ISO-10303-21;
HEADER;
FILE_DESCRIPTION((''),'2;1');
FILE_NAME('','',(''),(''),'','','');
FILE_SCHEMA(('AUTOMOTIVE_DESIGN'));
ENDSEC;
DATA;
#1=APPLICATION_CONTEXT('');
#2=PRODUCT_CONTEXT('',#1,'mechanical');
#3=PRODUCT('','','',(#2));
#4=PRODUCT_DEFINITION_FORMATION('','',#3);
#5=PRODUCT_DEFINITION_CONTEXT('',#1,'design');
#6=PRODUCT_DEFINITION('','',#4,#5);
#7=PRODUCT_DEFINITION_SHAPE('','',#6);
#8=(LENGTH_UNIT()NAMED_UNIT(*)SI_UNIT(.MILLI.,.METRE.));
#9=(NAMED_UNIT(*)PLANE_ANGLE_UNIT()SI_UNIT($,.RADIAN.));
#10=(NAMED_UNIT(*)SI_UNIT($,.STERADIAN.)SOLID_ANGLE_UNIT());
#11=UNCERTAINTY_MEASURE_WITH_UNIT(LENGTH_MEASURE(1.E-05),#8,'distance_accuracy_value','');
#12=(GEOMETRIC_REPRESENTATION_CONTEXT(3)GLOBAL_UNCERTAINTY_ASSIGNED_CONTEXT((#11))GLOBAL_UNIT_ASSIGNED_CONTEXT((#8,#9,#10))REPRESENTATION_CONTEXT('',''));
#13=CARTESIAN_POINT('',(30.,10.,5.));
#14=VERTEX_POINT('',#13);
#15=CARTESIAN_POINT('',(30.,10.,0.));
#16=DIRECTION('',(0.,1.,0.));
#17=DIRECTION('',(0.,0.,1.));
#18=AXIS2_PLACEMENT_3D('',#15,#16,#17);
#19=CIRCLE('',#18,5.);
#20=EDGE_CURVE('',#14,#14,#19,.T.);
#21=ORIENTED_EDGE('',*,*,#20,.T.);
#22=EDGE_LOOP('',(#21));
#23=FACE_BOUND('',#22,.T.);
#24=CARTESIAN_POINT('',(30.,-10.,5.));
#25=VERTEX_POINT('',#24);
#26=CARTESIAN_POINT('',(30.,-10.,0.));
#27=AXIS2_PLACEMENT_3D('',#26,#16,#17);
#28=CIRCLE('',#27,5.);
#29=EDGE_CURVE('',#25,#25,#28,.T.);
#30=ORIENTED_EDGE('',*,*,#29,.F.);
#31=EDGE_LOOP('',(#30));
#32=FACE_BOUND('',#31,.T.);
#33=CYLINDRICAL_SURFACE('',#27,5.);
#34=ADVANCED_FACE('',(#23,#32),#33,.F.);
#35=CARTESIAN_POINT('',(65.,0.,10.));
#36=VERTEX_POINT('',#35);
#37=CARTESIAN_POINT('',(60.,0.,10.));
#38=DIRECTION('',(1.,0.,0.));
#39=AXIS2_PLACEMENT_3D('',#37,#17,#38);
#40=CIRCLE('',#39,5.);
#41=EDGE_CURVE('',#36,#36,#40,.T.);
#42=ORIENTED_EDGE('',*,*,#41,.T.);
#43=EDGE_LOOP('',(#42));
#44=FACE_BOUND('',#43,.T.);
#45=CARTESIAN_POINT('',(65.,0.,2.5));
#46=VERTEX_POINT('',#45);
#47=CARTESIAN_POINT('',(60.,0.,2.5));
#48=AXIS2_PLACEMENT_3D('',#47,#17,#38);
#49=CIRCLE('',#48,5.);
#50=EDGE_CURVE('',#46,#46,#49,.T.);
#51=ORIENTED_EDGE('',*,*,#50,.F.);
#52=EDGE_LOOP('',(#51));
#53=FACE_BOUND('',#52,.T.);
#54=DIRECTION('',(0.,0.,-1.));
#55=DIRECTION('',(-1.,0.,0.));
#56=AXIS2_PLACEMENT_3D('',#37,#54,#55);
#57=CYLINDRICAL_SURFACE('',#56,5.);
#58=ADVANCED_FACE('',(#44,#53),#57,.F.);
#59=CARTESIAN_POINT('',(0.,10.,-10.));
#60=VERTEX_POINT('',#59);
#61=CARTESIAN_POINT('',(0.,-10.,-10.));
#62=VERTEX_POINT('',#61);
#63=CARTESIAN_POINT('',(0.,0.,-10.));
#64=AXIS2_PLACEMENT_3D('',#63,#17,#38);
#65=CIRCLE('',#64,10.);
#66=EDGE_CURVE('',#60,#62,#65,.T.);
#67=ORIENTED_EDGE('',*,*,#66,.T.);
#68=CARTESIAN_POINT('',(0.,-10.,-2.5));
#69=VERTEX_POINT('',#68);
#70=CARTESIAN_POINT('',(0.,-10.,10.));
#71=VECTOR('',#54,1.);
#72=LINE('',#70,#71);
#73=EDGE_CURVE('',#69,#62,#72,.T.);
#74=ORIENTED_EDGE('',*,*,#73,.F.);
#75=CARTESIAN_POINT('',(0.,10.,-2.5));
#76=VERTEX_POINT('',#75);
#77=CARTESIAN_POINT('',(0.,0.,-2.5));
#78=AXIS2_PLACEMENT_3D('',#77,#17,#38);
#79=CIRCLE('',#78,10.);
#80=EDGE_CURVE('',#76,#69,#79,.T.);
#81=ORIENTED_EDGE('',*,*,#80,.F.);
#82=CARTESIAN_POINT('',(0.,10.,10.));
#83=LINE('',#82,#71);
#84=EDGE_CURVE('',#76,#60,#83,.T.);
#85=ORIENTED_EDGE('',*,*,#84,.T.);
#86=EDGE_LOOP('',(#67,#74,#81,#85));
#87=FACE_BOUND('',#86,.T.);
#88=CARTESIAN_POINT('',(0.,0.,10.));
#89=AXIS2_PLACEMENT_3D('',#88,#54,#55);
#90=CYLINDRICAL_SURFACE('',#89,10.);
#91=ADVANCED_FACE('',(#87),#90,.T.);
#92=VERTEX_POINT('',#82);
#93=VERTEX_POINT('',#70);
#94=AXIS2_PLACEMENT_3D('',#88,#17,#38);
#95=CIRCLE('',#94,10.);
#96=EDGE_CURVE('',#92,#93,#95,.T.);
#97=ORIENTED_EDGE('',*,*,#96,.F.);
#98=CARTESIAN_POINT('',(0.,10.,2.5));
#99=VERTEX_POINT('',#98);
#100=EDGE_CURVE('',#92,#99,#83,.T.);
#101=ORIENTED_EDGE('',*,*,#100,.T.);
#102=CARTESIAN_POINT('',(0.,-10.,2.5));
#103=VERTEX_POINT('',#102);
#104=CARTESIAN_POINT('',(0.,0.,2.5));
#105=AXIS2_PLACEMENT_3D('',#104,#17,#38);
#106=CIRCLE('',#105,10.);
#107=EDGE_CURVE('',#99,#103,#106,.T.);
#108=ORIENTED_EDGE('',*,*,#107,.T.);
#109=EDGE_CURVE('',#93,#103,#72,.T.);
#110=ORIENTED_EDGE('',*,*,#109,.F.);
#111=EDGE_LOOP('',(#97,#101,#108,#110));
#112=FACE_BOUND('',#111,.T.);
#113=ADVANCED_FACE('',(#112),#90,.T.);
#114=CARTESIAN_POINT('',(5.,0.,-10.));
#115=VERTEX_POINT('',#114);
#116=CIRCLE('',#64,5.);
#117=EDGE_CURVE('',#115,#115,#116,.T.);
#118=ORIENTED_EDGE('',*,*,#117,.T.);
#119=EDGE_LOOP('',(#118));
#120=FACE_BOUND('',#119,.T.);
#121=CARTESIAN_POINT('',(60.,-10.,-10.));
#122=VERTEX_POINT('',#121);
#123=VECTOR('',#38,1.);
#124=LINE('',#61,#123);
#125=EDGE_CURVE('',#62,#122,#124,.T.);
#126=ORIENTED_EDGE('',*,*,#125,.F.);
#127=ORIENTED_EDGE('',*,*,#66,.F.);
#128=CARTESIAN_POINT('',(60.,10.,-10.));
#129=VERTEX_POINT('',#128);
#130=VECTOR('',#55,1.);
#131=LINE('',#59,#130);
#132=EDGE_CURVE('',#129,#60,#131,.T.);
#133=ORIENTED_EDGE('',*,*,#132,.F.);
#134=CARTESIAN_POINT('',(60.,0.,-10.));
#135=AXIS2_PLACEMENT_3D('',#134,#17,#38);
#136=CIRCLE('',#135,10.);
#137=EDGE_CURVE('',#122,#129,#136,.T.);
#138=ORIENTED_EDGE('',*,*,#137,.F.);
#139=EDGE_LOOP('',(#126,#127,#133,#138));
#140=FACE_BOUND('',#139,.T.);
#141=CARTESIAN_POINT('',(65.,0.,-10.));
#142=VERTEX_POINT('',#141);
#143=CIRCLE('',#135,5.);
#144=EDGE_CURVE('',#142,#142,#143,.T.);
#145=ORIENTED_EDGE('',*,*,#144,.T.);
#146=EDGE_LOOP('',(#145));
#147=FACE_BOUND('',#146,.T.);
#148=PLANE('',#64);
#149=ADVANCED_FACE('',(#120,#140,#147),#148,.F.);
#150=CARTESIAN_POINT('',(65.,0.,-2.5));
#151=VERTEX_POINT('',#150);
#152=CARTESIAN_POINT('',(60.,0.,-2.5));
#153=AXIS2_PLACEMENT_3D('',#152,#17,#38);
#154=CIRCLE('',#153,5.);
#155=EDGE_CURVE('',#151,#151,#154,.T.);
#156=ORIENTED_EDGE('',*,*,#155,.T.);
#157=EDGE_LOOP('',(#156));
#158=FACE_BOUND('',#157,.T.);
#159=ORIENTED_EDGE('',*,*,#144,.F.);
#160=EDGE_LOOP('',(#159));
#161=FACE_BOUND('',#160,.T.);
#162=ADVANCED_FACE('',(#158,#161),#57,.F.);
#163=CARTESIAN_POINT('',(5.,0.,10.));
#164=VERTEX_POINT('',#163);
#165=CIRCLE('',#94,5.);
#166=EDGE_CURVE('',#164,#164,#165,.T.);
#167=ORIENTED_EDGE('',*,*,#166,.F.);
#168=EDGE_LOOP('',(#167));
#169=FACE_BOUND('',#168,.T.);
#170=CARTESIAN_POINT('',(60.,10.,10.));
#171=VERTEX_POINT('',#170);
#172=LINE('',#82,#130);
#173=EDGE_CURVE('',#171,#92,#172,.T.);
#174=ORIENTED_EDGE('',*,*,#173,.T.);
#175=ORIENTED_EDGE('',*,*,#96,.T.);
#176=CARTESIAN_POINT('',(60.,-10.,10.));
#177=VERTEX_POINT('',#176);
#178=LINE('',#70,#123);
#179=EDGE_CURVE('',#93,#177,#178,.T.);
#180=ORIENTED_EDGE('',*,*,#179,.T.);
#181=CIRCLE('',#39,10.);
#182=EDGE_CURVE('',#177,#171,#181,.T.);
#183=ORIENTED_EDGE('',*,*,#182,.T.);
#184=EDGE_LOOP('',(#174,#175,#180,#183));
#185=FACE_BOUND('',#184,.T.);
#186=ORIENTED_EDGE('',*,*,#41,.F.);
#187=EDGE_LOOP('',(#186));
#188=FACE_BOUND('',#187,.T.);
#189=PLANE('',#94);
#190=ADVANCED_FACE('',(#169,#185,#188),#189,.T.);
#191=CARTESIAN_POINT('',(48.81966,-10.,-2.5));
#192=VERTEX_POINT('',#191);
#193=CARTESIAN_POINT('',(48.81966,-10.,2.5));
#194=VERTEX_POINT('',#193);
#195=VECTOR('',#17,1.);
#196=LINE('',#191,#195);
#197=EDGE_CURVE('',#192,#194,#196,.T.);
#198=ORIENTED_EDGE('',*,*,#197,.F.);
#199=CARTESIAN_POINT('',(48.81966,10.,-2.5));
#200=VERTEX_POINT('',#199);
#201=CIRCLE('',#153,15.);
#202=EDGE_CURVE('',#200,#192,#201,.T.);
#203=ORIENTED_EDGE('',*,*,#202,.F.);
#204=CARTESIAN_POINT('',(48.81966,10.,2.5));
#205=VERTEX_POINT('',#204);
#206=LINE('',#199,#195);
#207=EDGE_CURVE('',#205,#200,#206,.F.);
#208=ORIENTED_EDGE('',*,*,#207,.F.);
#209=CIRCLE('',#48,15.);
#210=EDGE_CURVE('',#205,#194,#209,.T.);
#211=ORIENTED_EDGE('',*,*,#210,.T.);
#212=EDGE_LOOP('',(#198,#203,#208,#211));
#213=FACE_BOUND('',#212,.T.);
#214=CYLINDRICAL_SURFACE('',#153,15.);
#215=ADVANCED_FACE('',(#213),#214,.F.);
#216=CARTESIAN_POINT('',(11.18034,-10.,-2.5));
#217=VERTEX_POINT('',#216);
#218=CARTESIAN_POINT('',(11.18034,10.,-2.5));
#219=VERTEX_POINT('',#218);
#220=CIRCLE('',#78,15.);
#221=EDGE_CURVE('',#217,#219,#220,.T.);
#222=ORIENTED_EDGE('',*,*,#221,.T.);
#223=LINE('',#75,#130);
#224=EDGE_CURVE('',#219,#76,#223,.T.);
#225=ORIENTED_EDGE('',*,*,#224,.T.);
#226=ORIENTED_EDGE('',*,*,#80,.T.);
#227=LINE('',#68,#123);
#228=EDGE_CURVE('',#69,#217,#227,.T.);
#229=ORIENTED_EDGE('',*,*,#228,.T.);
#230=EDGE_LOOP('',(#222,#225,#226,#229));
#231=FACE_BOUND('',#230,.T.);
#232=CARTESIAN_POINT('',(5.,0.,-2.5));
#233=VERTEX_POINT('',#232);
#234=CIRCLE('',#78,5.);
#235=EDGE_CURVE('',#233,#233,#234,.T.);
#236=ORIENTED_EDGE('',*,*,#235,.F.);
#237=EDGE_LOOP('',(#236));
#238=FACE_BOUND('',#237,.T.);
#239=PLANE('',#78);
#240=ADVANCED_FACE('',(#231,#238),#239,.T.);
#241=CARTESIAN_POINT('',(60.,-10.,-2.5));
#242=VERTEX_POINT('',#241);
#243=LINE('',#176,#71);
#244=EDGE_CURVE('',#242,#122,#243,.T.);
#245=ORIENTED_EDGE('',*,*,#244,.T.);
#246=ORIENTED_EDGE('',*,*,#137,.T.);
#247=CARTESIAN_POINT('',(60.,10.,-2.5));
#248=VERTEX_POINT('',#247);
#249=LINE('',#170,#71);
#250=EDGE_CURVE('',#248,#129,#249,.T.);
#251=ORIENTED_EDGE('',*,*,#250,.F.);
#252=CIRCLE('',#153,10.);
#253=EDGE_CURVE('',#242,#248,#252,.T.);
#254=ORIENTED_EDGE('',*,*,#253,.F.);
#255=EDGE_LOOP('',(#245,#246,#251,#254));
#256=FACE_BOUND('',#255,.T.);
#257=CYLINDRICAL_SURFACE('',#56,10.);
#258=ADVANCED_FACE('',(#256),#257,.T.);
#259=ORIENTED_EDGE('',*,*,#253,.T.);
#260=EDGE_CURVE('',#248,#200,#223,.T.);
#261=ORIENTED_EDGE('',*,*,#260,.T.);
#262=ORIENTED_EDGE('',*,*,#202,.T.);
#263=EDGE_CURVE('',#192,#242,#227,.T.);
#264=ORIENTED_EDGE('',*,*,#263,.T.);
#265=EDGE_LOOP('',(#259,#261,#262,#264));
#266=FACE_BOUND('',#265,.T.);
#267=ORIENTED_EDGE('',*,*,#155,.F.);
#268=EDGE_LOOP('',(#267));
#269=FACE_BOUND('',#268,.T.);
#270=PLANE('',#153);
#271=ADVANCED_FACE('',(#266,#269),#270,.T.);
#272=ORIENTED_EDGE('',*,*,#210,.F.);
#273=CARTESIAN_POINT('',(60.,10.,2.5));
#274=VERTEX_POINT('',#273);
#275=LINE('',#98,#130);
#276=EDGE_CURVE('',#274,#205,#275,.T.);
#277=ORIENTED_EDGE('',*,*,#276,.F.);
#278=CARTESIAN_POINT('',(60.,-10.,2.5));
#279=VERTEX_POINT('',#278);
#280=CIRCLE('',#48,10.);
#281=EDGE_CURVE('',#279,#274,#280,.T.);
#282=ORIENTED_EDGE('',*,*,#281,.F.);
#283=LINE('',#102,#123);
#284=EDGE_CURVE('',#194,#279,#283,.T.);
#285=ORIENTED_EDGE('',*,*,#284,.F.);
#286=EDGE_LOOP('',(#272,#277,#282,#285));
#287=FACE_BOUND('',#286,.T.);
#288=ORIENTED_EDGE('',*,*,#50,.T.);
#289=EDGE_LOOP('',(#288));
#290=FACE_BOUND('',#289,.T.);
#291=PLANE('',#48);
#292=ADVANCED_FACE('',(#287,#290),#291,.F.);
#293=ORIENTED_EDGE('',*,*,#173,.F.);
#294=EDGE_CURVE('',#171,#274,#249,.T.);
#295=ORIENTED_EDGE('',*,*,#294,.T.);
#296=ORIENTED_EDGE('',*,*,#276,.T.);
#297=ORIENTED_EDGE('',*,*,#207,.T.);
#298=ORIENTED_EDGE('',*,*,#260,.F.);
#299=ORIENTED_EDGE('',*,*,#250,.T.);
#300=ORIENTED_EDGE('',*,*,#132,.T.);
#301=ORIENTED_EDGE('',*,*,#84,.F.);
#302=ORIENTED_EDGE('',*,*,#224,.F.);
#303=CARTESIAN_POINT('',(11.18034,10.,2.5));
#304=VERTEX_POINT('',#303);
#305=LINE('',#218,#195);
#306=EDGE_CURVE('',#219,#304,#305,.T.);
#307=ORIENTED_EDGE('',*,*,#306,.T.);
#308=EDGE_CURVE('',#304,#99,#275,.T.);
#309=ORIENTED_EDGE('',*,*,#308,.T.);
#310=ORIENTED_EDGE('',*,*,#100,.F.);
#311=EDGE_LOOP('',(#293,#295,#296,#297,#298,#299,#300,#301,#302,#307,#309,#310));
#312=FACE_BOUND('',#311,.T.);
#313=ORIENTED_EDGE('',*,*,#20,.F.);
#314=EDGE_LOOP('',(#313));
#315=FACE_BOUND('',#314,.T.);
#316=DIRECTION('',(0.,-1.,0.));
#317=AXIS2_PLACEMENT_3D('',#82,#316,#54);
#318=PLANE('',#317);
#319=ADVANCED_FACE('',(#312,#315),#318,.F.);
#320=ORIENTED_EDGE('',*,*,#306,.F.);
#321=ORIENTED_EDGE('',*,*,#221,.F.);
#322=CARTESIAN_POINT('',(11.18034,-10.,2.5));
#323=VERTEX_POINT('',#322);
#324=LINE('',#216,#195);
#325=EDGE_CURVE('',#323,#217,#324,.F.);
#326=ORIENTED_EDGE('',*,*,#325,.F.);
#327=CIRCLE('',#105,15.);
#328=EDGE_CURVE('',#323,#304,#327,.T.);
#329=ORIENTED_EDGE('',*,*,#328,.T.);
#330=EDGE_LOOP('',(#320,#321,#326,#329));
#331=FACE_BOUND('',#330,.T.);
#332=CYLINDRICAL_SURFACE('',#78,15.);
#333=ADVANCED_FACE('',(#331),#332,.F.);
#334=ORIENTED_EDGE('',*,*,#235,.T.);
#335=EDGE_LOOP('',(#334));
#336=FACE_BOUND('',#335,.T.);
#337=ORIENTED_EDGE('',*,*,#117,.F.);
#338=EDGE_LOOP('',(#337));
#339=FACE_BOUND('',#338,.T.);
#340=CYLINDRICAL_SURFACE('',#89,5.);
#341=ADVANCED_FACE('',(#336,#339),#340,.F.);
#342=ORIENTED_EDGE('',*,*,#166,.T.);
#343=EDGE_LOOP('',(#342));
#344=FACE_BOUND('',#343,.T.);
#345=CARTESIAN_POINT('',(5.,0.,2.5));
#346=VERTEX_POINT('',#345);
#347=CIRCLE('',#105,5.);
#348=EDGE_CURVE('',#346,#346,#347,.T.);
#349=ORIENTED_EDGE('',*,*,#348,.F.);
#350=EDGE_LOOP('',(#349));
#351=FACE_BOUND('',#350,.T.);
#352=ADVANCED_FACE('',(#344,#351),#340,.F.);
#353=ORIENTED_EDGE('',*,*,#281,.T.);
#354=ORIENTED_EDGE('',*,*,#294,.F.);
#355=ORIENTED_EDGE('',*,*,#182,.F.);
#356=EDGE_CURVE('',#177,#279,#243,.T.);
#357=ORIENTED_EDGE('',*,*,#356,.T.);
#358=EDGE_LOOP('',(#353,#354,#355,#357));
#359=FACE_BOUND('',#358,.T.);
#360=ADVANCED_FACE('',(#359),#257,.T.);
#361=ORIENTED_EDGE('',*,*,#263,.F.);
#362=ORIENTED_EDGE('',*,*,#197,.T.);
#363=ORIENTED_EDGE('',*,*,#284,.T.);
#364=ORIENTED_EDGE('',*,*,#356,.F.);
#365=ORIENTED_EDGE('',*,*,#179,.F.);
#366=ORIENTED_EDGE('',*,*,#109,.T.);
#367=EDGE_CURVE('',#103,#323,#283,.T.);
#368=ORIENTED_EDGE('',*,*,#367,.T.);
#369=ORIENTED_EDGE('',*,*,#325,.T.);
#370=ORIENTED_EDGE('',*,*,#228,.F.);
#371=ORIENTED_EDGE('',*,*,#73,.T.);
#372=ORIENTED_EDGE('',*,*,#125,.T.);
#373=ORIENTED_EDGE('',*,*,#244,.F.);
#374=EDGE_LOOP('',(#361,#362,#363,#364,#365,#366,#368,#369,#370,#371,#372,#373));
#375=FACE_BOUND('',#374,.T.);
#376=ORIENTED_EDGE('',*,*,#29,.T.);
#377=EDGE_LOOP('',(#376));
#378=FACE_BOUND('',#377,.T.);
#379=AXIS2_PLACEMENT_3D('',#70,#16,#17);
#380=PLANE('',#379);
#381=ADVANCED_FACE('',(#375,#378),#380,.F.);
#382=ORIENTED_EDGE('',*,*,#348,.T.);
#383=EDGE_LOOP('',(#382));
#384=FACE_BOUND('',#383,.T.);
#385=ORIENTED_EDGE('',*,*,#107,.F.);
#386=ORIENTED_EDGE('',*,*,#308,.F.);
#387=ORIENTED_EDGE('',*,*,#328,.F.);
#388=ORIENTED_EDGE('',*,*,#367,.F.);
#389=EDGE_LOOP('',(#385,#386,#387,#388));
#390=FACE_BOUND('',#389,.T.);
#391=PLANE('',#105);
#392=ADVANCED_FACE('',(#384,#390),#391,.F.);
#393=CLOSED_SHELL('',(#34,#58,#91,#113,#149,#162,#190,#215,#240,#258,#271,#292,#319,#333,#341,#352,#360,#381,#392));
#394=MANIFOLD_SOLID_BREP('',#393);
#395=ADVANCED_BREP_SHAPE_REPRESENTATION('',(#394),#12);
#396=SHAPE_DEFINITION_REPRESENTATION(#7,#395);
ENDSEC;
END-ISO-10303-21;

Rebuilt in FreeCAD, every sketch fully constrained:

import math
import FreeCAD as App
import Part
import Sketcher

V = App.Vector

doc = App.newDocument("Part")
body = doc.addObject("PartDesign::Body", "Body")

sketch1 = body.newObject("Sketcher::SketchObject", "Sketch")
sketch1.AttachmentSupport = (doc.getObject("XY_Plane"), [""])
sketch1.MapMode = "FlatFace"
sketch1.addGeometry([
    Part.LineSegment(V(60, 10, 0), V(0, 10, 0)),
    Part.ArcOfCircle(Part.Circle(V(0, 0, 0), V(0, 0, 1), 10), math.radians(90), math.radians(270)),
    Part.LineSegment(V(0, -10, 0), V(60, -10, 0)),
    Part.ArcOfCircle(Part.Circle(V(60, 0, 0), V(0, 0, 1), 10), math.radians(-90), math.radians(90)),
    Part.Circle(V(60, 0, 0), V(0, 0, 1), 5),
    Part.Circle(V(0, 0, 0), V(0, 0, 1), 5),
], False)
sketch1.addConstraint([
    Sketcher.Constraint("Tangent", 0, 2, 1, 1),
    Sketcher.Constraint("Tangent", 1, 2, 2, 1),
    Sketcher.Constraint("Tangent", 2, 2, 3, 1),
    Sketcher.Constraint("Tangent", 3, 2, 0, 1),
    Sketcher.Constraint("Horizontal", 0),
    Sketcher.Constraint("Horizontal", 2),
    Sketcher.Constraint("Coincident", 1, 3, -1, 1),
    Sketcher.Constraint("Coincident", 5, 3, -1, 1),
    Sketcher.Constraint("Coincident", 4, 3, 3, 3),
    Sketcher.Constraint("Equal", 4, 5),
    Sketcher.Constraint("Diameter", 4, 10.0),
    Sketcher.Constraint("Radius", 1, 10.0),
    Sketcher.Constraint("DistanceX", 0, 2, 0, 1, 60.0),
])
pad1 = body.newObject("PartDesign::Pad", "Pad")
pad1.Profile = sketch1
pad1.Length = 20
pad1.Midplane = True

sketch2 = body.newObject("Sketcher::SketchObject", "Sketch001")
sketch2.AttachmentSupport = (doc.getObject("XY_Plane"), [""])
sketch2.MapMode = "FlatFace"
sketch2.addGeometry([
    Part.Circle(V(0, 0, 0), V(0, 0, 1), 15),
    Part.Circle(V(60, 0, 0), V(0, 0, 1), 15),
], False)
sketch2.addConstraint([
    Sketcher.Constraint("Coincident", 0, 3, -1, 1),
    Sketcher.Constraint("Equal", 0, 1),
    Sketcher.Constraint("PointOnObject", 1, 3, -1),
    Sketcher.Constraint("Diameter", 0, 30.0),
    Sketcher.Constraint("DistanceX", -1, 1, 1, 3, 60.0),
])
pocket1 = body.newObject("PartDesign::Pocket", "Pocket")
pocket1.Profile = sketch2
pocket1.Length = 5
pocket1.Midplane = True

sketch3 = body.newObject("Sketcher::SketchObject", "Sketch002")
sketch3.AttachmentSupport = (doc.getObject("XZ_Plane"), [""])
sketch3.MapMode = "FlatFace"
sketch3.AttachmentOffset = App.Placement(V(0, 0, -10), App.Rotation())
sketch3.addGeometry(Part.Circle(V(30, 0, 0), V(0, 0, 1), 5), False)
sketch3.addConstraint([
    Sketcher.Constraint("PointOnObject", 0, 3, -1),
    Sketcher.Constraint("Diameter", 0, 10.0),
    Sketcher.Constraint("DistanceX", -1, 1, 0, 3, 30.0),
])
pocket2 = body.newObject("PartDesign::Pocket", "Pocket001")
pocket2.Profile = sketch3
pocket2.Type = "ThroughAll"
pocket2.Reversed = True

doc.recompute()
